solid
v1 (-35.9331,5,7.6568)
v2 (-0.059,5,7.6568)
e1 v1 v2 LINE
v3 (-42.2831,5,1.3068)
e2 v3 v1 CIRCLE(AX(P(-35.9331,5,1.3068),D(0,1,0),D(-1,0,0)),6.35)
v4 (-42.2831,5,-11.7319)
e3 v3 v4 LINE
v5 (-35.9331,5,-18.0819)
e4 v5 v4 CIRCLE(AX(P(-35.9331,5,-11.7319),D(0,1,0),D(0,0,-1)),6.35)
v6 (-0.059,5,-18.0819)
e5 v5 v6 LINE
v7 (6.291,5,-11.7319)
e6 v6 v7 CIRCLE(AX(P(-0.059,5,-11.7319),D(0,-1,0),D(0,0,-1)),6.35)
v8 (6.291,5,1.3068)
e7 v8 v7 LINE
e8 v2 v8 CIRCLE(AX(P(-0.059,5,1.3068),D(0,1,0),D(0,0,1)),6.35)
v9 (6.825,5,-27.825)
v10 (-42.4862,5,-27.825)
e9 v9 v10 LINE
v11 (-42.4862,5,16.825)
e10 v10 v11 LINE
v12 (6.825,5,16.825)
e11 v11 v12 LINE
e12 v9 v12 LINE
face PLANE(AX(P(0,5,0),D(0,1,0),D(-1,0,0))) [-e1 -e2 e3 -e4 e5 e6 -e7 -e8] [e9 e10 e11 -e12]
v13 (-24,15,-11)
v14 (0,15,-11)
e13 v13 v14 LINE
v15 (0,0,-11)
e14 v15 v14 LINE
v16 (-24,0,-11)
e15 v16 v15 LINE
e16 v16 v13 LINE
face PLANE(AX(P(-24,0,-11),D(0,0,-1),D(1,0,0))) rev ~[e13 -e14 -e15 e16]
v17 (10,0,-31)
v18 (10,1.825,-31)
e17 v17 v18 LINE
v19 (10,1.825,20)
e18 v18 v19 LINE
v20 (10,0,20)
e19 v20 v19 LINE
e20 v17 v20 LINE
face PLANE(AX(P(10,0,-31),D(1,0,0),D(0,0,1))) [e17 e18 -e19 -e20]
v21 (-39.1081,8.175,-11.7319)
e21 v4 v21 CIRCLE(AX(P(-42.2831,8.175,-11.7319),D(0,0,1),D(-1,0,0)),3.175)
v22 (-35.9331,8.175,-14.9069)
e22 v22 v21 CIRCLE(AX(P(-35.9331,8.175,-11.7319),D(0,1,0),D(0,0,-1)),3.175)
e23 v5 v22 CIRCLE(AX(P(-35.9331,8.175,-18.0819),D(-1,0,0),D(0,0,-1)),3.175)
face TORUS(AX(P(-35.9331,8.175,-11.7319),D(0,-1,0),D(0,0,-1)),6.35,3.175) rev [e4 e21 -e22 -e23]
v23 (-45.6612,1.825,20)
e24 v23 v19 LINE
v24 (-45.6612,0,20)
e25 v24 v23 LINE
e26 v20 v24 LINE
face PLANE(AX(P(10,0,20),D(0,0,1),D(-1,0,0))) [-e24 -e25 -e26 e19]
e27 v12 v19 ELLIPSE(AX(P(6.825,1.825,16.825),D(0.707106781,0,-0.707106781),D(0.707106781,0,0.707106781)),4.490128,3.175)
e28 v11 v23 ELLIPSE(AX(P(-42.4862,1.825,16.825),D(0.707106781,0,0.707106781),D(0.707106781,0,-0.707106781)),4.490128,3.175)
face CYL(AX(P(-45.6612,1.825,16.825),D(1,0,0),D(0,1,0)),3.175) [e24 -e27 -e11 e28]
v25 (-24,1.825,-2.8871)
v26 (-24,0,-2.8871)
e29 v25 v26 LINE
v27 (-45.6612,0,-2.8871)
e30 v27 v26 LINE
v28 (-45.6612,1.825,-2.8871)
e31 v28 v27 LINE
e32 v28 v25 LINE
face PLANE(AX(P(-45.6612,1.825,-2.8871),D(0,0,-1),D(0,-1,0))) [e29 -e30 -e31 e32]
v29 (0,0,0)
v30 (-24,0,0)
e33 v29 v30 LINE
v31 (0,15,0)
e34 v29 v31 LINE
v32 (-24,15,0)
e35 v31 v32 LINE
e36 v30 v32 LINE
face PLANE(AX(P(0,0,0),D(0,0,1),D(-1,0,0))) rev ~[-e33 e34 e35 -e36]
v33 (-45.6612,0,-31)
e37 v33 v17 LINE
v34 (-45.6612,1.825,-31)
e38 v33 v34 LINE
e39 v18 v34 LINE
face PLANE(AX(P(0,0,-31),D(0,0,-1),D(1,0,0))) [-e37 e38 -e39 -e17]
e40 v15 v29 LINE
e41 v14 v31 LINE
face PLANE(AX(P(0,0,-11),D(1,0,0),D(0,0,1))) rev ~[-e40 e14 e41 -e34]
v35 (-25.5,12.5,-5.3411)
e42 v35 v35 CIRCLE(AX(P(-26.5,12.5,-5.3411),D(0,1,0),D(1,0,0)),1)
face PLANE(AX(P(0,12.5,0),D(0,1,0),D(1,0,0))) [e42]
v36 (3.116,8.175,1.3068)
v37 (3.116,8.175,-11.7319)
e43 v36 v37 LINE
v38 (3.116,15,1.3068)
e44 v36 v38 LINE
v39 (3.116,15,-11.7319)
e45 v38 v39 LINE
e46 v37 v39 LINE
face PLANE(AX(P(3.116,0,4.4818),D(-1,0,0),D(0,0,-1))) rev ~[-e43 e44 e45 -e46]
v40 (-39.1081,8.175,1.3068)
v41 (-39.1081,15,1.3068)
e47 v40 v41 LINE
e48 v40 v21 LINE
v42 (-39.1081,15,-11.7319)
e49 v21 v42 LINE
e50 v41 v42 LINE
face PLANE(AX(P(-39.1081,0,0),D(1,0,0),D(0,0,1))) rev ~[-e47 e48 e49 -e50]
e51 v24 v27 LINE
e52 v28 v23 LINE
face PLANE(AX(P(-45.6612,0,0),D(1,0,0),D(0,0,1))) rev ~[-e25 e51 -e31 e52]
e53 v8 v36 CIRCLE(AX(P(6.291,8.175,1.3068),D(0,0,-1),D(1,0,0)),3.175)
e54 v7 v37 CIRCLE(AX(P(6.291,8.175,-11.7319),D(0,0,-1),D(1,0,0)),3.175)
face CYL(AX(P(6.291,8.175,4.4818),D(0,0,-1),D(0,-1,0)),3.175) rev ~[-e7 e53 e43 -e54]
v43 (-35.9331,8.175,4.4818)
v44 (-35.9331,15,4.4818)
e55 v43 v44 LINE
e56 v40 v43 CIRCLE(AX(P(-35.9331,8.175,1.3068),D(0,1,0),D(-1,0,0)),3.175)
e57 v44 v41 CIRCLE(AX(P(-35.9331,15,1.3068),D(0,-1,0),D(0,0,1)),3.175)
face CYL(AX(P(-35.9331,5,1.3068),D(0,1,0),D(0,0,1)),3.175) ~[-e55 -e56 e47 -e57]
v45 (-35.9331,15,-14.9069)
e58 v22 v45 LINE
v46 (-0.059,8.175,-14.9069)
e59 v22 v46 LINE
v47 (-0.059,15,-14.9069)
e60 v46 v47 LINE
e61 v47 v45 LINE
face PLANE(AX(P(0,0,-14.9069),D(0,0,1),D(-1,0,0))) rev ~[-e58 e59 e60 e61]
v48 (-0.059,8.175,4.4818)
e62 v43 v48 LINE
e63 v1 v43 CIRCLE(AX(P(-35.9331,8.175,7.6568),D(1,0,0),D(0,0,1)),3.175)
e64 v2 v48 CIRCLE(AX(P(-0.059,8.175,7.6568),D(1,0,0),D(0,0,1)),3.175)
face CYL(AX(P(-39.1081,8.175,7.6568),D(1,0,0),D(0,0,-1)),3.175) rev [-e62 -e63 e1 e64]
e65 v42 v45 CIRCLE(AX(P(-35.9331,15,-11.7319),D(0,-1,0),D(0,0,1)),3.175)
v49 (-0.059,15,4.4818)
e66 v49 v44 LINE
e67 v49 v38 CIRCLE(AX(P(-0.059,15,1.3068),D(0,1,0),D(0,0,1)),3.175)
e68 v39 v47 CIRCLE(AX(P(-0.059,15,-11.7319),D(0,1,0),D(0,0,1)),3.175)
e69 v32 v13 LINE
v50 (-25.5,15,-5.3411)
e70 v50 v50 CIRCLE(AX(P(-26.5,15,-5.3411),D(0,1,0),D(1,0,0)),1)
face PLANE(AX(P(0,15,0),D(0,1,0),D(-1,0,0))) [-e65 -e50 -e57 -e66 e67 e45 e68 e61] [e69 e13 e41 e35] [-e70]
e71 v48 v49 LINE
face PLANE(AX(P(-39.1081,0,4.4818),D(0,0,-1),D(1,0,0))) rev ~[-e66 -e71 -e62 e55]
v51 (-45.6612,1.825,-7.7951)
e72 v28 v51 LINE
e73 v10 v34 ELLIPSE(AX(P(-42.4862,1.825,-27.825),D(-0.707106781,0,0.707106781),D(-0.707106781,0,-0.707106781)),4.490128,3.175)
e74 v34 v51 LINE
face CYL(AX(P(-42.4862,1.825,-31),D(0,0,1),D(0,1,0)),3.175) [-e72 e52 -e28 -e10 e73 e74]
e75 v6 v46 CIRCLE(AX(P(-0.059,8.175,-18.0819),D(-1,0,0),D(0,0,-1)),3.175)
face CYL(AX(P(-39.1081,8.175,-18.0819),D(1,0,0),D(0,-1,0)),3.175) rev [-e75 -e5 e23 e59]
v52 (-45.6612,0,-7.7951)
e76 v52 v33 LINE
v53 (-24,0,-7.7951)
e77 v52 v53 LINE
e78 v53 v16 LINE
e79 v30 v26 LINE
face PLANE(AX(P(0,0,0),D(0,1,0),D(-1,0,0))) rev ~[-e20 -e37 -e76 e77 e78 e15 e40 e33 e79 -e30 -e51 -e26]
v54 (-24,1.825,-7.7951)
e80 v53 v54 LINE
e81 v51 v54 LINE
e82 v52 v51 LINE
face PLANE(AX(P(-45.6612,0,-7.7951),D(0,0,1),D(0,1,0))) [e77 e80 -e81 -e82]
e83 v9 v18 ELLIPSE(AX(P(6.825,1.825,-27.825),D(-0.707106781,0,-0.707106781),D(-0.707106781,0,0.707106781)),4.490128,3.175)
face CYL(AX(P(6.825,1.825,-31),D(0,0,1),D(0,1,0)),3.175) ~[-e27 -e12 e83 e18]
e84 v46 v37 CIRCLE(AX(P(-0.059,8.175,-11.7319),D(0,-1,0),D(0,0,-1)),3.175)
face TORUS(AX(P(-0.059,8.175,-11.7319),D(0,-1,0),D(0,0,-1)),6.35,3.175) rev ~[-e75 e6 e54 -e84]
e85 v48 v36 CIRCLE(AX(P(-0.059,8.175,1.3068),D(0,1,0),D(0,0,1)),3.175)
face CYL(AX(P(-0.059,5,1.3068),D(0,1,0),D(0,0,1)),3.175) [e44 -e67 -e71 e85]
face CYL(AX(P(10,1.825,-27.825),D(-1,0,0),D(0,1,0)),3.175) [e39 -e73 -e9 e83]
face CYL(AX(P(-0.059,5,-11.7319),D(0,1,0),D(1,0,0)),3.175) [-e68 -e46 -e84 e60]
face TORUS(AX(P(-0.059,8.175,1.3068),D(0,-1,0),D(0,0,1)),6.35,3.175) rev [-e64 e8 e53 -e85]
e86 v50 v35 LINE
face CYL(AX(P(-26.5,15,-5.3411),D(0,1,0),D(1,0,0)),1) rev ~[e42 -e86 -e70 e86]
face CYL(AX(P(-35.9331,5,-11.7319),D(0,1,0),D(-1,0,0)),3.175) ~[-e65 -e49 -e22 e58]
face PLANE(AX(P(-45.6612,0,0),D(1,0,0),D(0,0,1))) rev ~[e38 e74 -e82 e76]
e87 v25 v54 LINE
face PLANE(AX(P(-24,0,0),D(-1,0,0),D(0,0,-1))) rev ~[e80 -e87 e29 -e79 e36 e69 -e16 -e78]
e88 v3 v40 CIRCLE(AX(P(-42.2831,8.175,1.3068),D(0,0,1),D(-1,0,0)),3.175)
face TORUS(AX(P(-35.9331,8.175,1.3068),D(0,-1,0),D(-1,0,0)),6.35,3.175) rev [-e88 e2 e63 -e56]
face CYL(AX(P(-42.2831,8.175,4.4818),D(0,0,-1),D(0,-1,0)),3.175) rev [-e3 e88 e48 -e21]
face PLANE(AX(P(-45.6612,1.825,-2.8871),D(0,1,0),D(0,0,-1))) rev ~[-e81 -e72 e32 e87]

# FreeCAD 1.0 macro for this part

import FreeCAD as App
import Part
import Sketcher

V = App.Vector


def edges_at(feature, points):
    """Names of the edges that pass closest to the given points."""
    edges = feature.Shape.Edges
    near = lambda p: min(range(len(edges)), key=lambda i: edges[i].distToShape(Part.Vertex(*p))[0])
    return sorted({f"Edge{near(p) + 1}" for p in points})


def add_polygon(sketch, points):
    """Adds a closed chain of lines whose ends are joined by coincident constraints."""
    first, n = sketch.GeometryCount, len(points)
    for a, b in zip(points, points[1:] + points[:1]):
        sketch.addGeometry(Part.LineSegment(App.Vector(*a, 0), App.Vector(*b, 0)), False)
    for i in range(n):
        sketch.addConstraint(Sketcher.Constraint("Coincident", first + i, 2, first + (i + 1) % n, 1))

doc = App.newDocument("Part")
params = doc.addObject("Spreadsheet::Sheet", "Params")
for row, (alias, value) in enumerate([
    ("sketch1_width", "24 mm"),
    ("sketch1_height", "11 mm"),
    ("pad1_length", "15 mm"),
    ("sketch2_height", "51 mm"),
    ("pad2_length", "5 mm"),
    ("fillet_radius", "3.175 mm"),
    ("pocket1_length", "25 mm"),
    ("sketch4_diameter", "2 mm"),
    ("pocket2_length", "2.5 mm"),
], start=1):
    params.set(f"A{row}", alias)
    params.set(f"B{row}", "=" + value)
    params.setAlias(f"B{row}", alias)

body = doc.addObject("PartDesign::Body", "Body")

# Sketch on XZ plane
sketch1 = body.newObject("Sketcher::SketchObject", "Sketch")
sketch1.AttachmentSupport = (doc.getObject("XZ_Plane"), [""])
sketch1.MapMode = "FlatFace"
add_polygon(sketch1, [(-39, 4), (3, 4), (3, -15), (-39, -15)])  # lines 0-3
add_polygon(sketch1, [(0, 0), (-24, 0), (-24, -11), (0, -11)])  # lines 4-7
sketch1.addConstraint(Sketcher.Constraint("Horizontal", 0))
sketch1.addConstraint(Sketcher.Constraint("Vertical", 1))
sketch1.addConstraint(Sketcher.Constraint("Horizontal", 2))
sketch1.addConstraint(Sketcher.Constraint("Vertical", 3))
sketch1.addConstraint(Sketcher.Constraint("Horizontal", 4))
sketch1.addConstraint(Sketcher.Constraint("Vertical", 5))
sketch1.addConstraint(Sketcher.Constraint("Horizontal", 6))
sketch1.addConstraint(Sketcher.Constraint("Vertical", 7))
sketch1.addConstraint(Sketcher.Constraint("Coincident", 7, 2, -1, 1))
sketch1.addConstraint(Sketcher.Constraint("DistanceX", 4, 2, 4, 1, 24.0))
sketch1.addConstraint(Sketcher.Constraint("DistanceY", 5, 2, 5, 1, 11.0))
sketch1.addConstraint(Sketcher.Constraint("DistanceX", 0, 1, 0, 2, 42.224))
sketch1.addConstraint(Sketcher.Constraint("DistanceY", 1, 2, 1, 1, 19.3887))
sketch1.addConstraint(Sketcher.Constraint("DistanceX", -1, 1, 0, 2, 3.116))
sketch1.addConstraint(Sketcher.Constraint("DistanceY", 1, 2, -1, 1, 14.907))
sketch1.setExpression("Constraints[17]", "Params.sketch1_width")
sketch1.setExpression("Constraints[18]", "Params.sketch1_height")
pad1 = body.newObject("PartDesign::Pad", "Pad")
pad1.Profile = sketch1
pad1.setExpression("Length", "Params.pad1_length")
pad1.Reversed = True

# Sketch on XZ plane
sketch2 = body.newObject("Sketcher::SketchObject", "Sketch001")
sketch2.AttachmentSupport = (doc.getObject("XZ_Plane"), [""])
sketch2.MapMode = "FlatFace"
add_polygon(sketch2, [(10, -31), (-46, -31), (-46, 20), (10, 20)])  # lines 0-3
add_polygon(sketch2, [(3, 4), (-39, 4), (-39, -15), (3, -15)])  # lines 4-7
sketch2.addConstraint(Sketcher.Constraint("Horizontal", 0))
sketch2.addConstraint(Sketcher.Constraint("Vertical", 1))
sketch2.addConstraint(Sketcher.Constraint("Horizontal", 2))
sketch2.addConstraint(Sketcher.Constraint("Vertical", 3))
sketch2.addConstraint(Sketcher.Constraint("Horizontal", 4))
sketch2.addConstraint(Sketcher.Constraint("Vertical", 5))
sketch2.addConstraint(Sketcher.Constraint("Horizontal", 6))
sketch2.addConstraint(Sketcher.Constraint("Vertical", 7))
sketch2.addConstraint(Sketcher.Constraint("DistanceY", -1, 1, 1, 2, 20.0))
sketch2.addConstraint(Sketcher.Constraint("DistanceX", -1, 1, 2, 2, 10.0))
sketch2.addConstraint(Sketcher.Constraint("DistanceY", 1, 1, 1, 2, 51.0))
sketch2.addConstraint(Sketcher.Constraint("DistanceX", 4, 2, 4, 1, 42.224))
sketch2.addConstraint(Sketcher.Constraint("DistanceX", 0, 2, 0, 1, 55.6612))
sketch2.addConstraint(Sketcher.Constraint("DistanceY", 5, 2, 5, 1, 19.3887))
sketch2.addConstraint(Sketcher.Constraint("DistanceX", 4, 2, -1, 1, 39.108))
sketch2.addConstraint(Sketcher.Constraint("DistanceY", 5, 2, -1, 1, 14.907))
sketch2.setExpression("Constraints[18]", "Params.sketch2_height")
pad2 = body.newObject("PartDesign::Pad", "Pad001")
pad2.Profile = sketch2
pad2.setExpression("Length", "Params.pad2_length")
pad2.Reversed = True
doc.recompute()

fillet = body.newObject("PartDesign::Fillet", "Fillet")
fillet.Base = (pad2, edges_at(pad2, [
    (-17.831, 5, 20),
    (10, 5, -5.5),
    (-17.831, 5, -31),
    (-45.661, 5, -5.5),
    (-17.996, 5, -14.907),
    (-39.108, 5, -5.213),
    (-17.996, 5, 4.482),
    (3.116, 5, -5.213),
    (-39.108, 10, -14.907),
    (-39.108, 10, 4.482),
    (3.116, 10, -14.907),
    (3.116, 10, 4.482),
]))
fillet.setExpression("Radius", "Params.fillet_radius")

# Sketch on YZ plane
sketch3 = body.newObject("Sketcher::SketchObject", "Sketch002")
sketch3.AttachmentSupport = (doc.getObject("YZ_Plane"), [""])
sketch3.MapMode = "FlatFace"
sketch3.AttachmentOffset = App.Placement(V(0, 0, -45.6612), App.Rotation())
add_polygon(sketch3, [(0, -2.9), (1.8, -2.9), (1.8, -7.8), (0, -7.8)])  # lines 0-3
sketch3.addConstraint(Sketcher.Constraint("Horizontal", 0))
sketch3.addConstraint(Sketcher.Constraint("Vertical", 1))
sketch3.addConstraint(Sketcher.Constraint("Horizontal", 2))
sketch3.addConstraint(Sketcher.Constraint("Vertical", 3))
sketch3.addConstraint(Sketcher.Constraint("PointOnObject", 2, 2, -2))
sketch3.addConstraint(Sketcher.Constraint("DistanceX", 0, 1, 0, 2, 1.825))
sketch3.addConstraint(Sketcher.Constraint("DistanceY", 1, 2, 1, 1, 4.908))
sketch3.addConstraint(Sketcher.Constraint("DistanceY", 0, 2, -1, 1, 2.887))
pocket1 = body.newObject("PartDesign::Pocket", "Pocket")
pocket1.Profile = sketch3
pocket1.setExpression("Length", "Params.pocket1_length")
pocket1.Reversed = True

# Sketch on XZ plane
sketch4 = body.newObject("Sketcher::SketchObject", "Sketch003")
sketch4.AttachmentSupport = (doc.getObject("XZ_Plane"), [""])
sketch4.MapMode = "FlatFace"
sketch4.AttachmentOffset = App.Placement(V(0, 0, -15), App.Rotation())
sketch4.addGeometry(Part.Circle(V(-26.5, -5.3, 0), V(0, 0, 1), 1), False)
sketch4.addConstraint(Sketcher.Constraint("Diameter", 0, 2.0))
sketch4.addConstraint(Sketcher.Constraint("DistanceX", 0, 3, -1, 1, 26.5))
sketch4.addConstraint(Sketcher.Constraint("DistanceY", 0, 3, -1, 1, 5.341))
sketch4.setExpression("Constraints[0]", "Params.sketch4_diameter")
pocket2 = body.newObject("PartDesign::Pocket", "Pocket001")
pocket2.Profile = sketch4
pocket2.setExpression("Length", "Params.pocket2_length")
pocket2.Reversed = True

doc.recompute()
